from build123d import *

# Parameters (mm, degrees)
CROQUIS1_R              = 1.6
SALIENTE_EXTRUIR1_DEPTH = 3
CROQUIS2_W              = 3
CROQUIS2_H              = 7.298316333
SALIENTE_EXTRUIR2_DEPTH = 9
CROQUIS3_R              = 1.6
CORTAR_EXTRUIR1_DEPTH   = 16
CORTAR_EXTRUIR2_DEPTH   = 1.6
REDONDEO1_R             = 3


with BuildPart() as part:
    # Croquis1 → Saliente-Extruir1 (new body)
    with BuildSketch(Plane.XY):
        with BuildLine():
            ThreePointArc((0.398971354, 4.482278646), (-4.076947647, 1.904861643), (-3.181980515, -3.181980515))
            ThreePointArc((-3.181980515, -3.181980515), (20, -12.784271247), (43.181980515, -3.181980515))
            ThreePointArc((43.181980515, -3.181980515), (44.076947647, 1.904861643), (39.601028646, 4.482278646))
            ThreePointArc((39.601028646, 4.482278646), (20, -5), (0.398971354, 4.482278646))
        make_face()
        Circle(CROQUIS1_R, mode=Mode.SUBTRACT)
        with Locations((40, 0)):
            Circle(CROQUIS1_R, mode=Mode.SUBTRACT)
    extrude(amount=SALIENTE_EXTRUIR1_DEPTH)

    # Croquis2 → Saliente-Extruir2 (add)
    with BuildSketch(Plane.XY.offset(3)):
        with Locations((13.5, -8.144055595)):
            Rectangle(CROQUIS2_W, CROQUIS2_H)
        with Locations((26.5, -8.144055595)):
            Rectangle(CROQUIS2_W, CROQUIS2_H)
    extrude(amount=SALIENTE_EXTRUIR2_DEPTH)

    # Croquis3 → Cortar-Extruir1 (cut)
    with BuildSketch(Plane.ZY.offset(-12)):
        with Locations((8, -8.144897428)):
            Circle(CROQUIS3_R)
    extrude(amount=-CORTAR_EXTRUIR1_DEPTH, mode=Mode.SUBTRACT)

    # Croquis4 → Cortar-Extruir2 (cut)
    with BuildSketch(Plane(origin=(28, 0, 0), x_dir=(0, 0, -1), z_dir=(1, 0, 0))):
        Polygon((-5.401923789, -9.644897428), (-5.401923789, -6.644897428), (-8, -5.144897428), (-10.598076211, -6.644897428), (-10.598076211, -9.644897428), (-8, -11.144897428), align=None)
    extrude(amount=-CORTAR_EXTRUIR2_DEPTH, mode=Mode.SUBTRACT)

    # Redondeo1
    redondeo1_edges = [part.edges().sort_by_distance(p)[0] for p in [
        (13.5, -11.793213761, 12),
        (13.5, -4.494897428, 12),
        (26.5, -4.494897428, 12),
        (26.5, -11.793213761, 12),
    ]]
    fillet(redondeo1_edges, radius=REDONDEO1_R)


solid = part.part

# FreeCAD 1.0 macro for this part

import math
import FreeCAD as App
import Part
import Sketcher
from FreeCAD import Vector
Q = App.Units.Quantity


def edges_at(feature, points):
    """Names of the edges that pass closest to the given points."""
    edges = feature.Shape.Edges
    near = lambda p: min(range(len(edges)), key=lambda i: edges[i].distToShape(Part.Vertex(*p))[0])
    return sorted({f"Edge{near(p) + 1}" for p in points})


def add_polygon(sketch, points):
    """Adds a closed chain of lines whose ends are joined by coincident constraints."""
    first, n = sketch.GeometryCount, len(points)
    for a, b in zip(points, points[1:] + points[:1]):
        sketch.addGeometry(Part.LineSegment(App.Vector(*a, 0), App.Vector(*b, 0)), False)
    for i in range(n):
        sketch.addConstraint(Sketcher.Constraint("Coincident", first + i, 2, first + (i + 1) % n, 1))

doc = App.newDocument("Part")
body = doc.addObject("PartDesign::Body", "Body")

sketch1 = body.newObject("Sketcher::SketchObject", "Sketch")
sketch1.AttachmentSupport = (doc.getObject("XY_Plane"), [""])
sketch1.MapMode = "FlatFace"
sketch1.addGeometry([
    Part.ArcOfCircle(Part.Circle(Vector(0, 0, 0), Vector(0, 0, 1), 4.5), math.radians(84.91346), math.radians(225)),
    Part.ArcOfCircle(Part.Circle(Vector(20, 20, 0), Vector(0, 0, 1), 32.784271), math.radians(-135), math.radians(-45)),
    Part.ArcOfCircle(Part.Circle(Vector(40, 0, 0), Vector(0, 0, 1), 4.5), math.radians(-45), math.radians(95.08654)),
    Part.ArcOfCircle(Part.Circle(Vector(20, 20, 0), Vector(0, 0, 1), 25), math.radians(-141.632083), math.radians(-38.367917)),
    Part.Circle(Vector(0, 0, 0), Vector(0, 0, 1), 1.6),
    Part.Circle(Vector(40, 0, 0), Vector(0, 0, 1), 1.6),
], False)
sketch1.addConstraint([
    Sketcher.Constraint("Tangent", 0, 2, 1, 1),
    Sketcher.Constraint("Tangent", 1, 2, 2, 1),
    Sketcher.Constraint("Coincident", 2, 2, 3, 2),
    Sketcher.Constraint("Coincident", 3, 1, 0, 1),
    Sketcher.Constraint("Coincident", 0, 3, -1, 1),
    Sketcher.Constraint("Coincident", 4, 3, -1, 1),
    Sketcher.Constraint("Coincident", 3, 3, 1, 3),
    Sketcher.Constraint("Coincident", 5, 3, 2, 3),
    Sketcher.Constraint("Equal", 0, 2),
    Sketcher.Constraint("Equal", 4, 5),
    Sketcher.Constraint("PointOnObject", 2, 3, -1),
    Sketcher.Constraint("Radius", 3, Q("25 mm")),
    Sketcher.Constraint("Diameter", 4, Q("3.2 mm")),
    Sketcher.Constraint("Radius", 0, Q("4.5 mm")),
    Sketcher.Constraint("DistanceX", -1, 1, 1, 3, Q("20 mm")),
    Sketcher.Constraint("DistanceY", -1, 1, 1, 3, Q("20 mm")),
])
pad1 = body.newObject("PartDesign::Pad", "Pad")
pad1.Profile = sketch1
pad1.Length = 3

sketch2 = body.newObject("Sketcher::SketchObject", "Sketch001")
sketch2.AttachmentSupport = (doc.getObject("XY_Plane"), [""])
sketch2.MapMode = "FlatFace"
sketch2.AttachmentOffset = App.Placement(Vector(0, 0, 3), App.Rotation())
add_polygon(sketch2, [(12, -4.494897), (12, -11.793214), (15, -11.793214), (15, -4.494897)])
add_polygon(sketch2, [(25, -4.494897), (25, -11.793214), (28, -11.793214), (28, -4.494897)])
sketch2.addConstraint([
    Sketcher.Constraint("Vertical", 0),
    Sketcher.Constraint("Horizontal", 1),
    Sketcher.Constraint("Vertical", 2),
    Sketcher.Constraint("Horizontal", 3),
    Sketcher.Constraint("Vertical", 4),
    Sketcher.Constraint("Horizontal", 5),
    Sketcher.Constraint("Vertical", 6),
    Sketcher.Constraint("Horizontal", 7),
    Sketcher.Constraint("Horizontal", 1, 2, 4, 2),
    Sketcher.Constraint("Horizontal", 3, 2, 6, 2),
    Sketcher.Constraint("Equal", 3, 5),
    Sketcher.Constraint("DistanceX", 1, 1, 1, 2, Q("3 mm")),
    Sketcher.Constraint("DistanceX", -1, 1, 0, 2, Q("12 mm")),
    Sketcher.Constraint("DistanceX", -1, 1, 4, 2, Q("25 mm")),
    Sketcher.Constraint("DistanceY", 0, 2, 0, 1, Q("7.298316 mm")),
    Sketcher.Constraint("DistanceY", 0, 2, -1, 1, Q("11.793214 mm")),
])
pad2 = body.newObject("PartDesign::Pad", "Pad001")
pad2.Profile = sketch2
pad2.Length = 9

sketch3 = body.newObject("Sketcher::SketchObject", "Sketch002")
sketch3.AttachmentSupport = (doc.getObject("YZ_Plane"), [""])
sketch3.MapMode = "FlatFace"
sketch3.AttachmentOffset = App.Placement(Vector(0, 0, 12), App.Rotation())
sketch3.addGeometry(Part.Circle(Vector(-8.144897, 8, 0), Vector(0, 0, 1), 1.6), False)
sketch3.addConstraint([
    Sketcher.Constraint("Diameter", 0, Q("3.2 mm")),
    Sketcher.Constraint("DistanceY", -1, 1, 0, 3, Q("8 mm")),
    Sketcher.Constraint("DistanceX", 0, 3, -1, 1, Q("8.144897 mm")),
])
pocket1 = body.newObject("PartDesign::Pocket", "Pocket")
pocket1.Profile = sketch3
pocket1.Length = 16
pocket1.Reversed = True

sketch4 = body.newObject("Sketcher::SketchObject", "Sketch003")
sketch4.AttachmentSupport = (doc.getObject("YZ_Plane"), [""])
sketch4.MapMode = "FlatFace"
sketch4.AttachmentOffset = App.Placement(Vector(0, 0, 28), App.Rotation())
add_polygon(sketch4, [(-9.644897, 5.401924), (-6.644897, 5.401924), (-5.144897, 8), (-6.644897, 10.598076), (-9.644897, 10.598076), (-11.144897, 8)])
sketch4.addConstraint([
    Sketcher.Constraint("Horizontal", 0),
    Sketcher.Constraint("Horizontal", 3),
    Sketcher.Constraint("Parallel", 1, 4),
    Sketcher.Constraint("Parallel", 2, 5),
    Sketcher.Constraint("Horizontal", 1, 2, 4, 2),
    Sketcher.Constraint("Vertical", 0, 2, 2, 2),
    Sketcher.Constraint("Vertical", 3, 2, 5, 2),
    Sketcher.Constraint("DistanceX", 0, 1, 0, 2, Q("3 mm")),
    Sketcher.Constraint("Angle", 1, Q("60 deg")),
    Sketcher.Constraint("Distance", 1, Q("3 mm")),
    Sketcher.Constraint("DistanceY", -1, 1, 1, 2, Q("8 mm")),
    Sketcher.Constraint("DistanceX", 0, 2, -1, 1, Q("6.644897 mm")),
])
pocket2 = body.newObject("PartDesign::Pocket", "Pocket001")
pocket2.Profile = sketch4
pocket2.Length = 1.6
doc.recompute()

fillet = body.newObject("PartDesign::Fillet", "Fillet")
fillet.Base = (pocket2, edges_at(pocket2, [
    (13.5, -11.793, 12),
    (13.5, -4.495, 12),
    (26.5, -4.495, 12),
    (26.5, -11.793, 12),
]))
fillet.Radius = 3

doc.recompute()
